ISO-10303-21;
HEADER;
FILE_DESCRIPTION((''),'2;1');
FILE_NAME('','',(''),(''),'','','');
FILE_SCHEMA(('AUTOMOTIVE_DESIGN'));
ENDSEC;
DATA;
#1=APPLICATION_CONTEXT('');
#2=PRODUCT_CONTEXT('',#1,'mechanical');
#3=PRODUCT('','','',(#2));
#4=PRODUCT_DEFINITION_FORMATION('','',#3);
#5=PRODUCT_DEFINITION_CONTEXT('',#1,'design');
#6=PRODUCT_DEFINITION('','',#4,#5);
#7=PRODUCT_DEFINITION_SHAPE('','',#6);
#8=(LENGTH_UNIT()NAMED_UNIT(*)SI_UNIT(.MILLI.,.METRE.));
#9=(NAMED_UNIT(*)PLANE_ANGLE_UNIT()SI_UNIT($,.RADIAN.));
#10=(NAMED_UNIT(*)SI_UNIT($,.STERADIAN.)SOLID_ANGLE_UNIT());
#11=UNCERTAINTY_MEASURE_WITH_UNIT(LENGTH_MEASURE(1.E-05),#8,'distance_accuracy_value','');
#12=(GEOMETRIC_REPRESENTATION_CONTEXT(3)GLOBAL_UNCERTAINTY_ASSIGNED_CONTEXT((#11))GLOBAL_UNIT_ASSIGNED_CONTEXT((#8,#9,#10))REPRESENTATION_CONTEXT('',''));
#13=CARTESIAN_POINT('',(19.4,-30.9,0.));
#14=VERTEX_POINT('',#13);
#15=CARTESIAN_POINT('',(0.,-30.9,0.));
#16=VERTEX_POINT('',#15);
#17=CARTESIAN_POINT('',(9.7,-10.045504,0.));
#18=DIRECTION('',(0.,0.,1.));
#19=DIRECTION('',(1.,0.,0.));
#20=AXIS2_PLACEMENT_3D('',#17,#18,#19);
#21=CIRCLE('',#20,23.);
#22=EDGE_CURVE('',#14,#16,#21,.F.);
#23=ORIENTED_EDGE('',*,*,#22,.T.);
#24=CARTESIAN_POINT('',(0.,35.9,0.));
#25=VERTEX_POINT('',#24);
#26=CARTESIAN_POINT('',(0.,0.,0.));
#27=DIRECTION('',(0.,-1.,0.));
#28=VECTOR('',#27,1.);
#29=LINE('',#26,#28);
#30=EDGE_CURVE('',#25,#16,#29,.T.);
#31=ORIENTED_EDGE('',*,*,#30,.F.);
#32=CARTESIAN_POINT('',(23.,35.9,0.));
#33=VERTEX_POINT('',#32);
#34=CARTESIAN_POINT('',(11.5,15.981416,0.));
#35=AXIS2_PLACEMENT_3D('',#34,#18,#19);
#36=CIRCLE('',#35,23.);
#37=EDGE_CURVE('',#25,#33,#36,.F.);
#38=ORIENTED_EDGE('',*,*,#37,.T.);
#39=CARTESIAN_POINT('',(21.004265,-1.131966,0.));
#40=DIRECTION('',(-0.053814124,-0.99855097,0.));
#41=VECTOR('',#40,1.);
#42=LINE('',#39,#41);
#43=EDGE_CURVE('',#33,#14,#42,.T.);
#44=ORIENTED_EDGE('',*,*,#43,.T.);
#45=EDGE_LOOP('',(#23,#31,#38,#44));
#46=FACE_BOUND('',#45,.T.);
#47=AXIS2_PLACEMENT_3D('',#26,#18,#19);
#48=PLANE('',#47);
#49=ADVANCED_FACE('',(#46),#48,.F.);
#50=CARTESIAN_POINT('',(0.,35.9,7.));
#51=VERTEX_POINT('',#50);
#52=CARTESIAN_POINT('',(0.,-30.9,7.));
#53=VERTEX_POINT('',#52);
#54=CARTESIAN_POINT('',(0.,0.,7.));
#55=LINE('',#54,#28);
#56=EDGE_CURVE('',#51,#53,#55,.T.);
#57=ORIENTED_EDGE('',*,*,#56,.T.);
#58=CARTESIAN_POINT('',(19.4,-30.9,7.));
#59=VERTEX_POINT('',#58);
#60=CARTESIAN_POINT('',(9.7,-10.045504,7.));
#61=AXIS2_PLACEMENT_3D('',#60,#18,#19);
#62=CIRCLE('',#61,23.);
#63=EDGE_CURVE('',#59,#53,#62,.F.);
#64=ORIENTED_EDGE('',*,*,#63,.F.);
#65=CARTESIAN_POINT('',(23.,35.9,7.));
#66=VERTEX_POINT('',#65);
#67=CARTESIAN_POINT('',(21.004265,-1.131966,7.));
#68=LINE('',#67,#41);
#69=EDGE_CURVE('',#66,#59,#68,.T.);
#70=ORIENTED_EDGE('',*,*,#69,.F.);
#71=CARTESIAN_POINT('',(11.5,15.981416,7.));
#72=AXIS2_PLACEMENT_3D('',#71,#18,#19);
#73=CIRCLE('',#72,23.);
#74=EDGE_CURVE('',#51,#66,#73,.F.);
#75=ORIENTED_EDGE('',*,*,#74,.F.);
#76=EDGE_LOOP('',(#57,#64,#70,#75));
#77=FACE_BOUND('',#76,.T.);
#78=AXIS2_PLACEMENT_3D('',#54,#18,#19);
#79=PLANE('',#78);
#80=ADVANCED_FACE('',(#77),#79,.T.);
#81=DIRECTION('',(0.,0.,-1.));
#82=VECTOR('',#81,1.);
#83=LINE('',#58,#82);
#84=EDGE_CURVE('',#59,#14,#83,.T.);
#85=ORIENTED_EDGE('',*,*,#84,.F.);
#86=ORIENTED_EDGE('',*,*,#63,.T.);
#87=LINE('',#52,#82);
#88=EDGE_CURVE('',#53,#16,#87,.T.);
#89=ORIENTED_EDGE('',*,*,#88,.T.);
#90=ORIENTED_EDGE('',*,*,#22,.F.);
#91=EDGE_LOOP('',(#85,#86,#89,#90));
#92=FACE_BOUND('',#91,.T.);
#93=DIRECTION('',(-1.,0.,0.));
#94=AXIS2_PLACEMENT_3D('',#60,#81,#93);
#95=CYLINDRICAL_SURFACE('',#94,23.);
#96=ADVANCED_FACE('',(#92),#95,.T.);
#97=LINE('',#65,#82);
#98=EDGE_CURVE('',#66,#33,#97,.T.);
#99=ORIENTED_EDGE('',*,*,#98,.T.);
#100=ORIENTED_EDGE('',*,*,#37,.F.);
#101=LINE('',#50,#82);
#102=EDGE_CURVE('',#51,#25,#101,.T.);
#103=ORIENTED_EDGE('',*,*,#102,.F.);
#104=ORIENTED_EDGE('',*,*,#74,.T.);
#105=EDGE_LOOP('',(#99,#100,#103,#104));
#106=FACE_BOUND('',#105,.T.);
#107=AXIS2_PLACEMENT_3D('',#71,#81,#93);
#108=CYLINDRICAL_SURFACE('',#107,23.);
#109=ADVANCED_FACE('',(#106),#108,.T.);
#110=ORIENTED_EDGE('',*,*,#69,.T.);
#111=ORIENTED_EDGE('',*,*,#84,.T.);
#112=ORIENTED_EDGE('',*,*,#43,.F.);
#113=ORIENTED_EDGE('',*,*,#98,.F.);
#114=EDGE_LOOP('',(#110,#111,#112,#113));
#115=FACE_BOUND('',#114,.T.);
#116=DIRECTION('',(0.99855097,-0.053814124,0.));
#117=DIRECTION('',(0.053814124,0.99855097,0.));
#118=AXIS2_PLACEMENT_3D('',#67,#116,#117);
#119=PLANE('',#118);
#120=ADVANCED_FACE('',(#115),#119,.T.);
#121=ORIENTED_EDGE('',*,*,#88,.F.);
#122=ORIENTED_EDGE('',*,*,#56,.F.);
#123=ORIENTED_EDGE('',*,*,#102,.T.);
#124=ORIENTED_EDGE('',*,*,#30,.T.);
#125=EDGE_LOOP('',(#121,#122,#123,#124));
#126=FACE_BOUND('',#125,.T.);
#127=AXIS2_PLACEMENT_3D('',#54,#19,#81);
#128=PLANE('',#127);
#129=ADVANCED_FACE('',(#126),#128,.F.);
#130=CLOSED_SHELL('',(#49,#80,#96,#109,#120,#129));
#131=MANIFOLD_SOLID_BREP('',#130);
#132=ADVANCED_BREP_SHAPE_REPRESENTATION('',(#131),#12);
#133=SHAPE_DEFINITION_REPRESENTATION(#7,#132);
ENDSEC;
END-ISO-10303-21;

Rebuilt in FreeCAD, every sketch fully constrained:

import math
import FreeCAD as App
import Part
import Sketcher

doc = App.newDocument("Part")
body = doc.addObject("PartDesign::Body", "Body")

sketch1 = body.newObject("Sketcher::SketchObject", "Sketch")
sketch1.AttachmentSupport = (doc.getObject("XY_Plane"), [""])
sketch1.MapMode = "FlatFace"
sketch1.addGeometry([
    Part.ArcOfCircle(Part.Circle(App.Vector(11.5, 15.981416, 0), App.Vector(0, 0, 1), 23), math.radians(60), math.radians(120)),
    Part.LineSegment(App.Vector(0, 35.9, 0), App.Vector(0, -30.9, 0)),
    Part.ArcOfCircle(Part.Circle(App.Vector(9.7, -10.045504, 0), App.Vector(0, 0, 1), 23), math.radians(-114.944435), math.radians(-65.055565)),
    Part.LineSegment(App.Vector(19.4, -30.9, 0), App.Vector(23, 35.9, 0)),
], False)
sketch1.addConstraint([
    Sketcher.Constraint("Coincident", 0, 2, 1, 1),
    Sketcher.Constraint("Coincident", 1, 2, 2, 1),
    Sketcher.Constraint("Coincident", 2, 2, 3, 1),
    Sketcher.Constraint("Coincident", 3, 2, 0, 1),
    Sketcher.Constraint("Vertical", 1),
    Sketcher.Constraint("Equal", 0, 2),
    Sketcher.Constraint("PointOnObject", 0, 2, -2),
    Sketcher.Constraint("Horizontal", 1, 2, 2, 2),
    Sketcher.Constraint("Horizontal", 0, 2, 3, 2),
    Sketcher.Constraint("Radius", 0, 23.0),
    Sketcher.Constraint("DistanceY", 1, 2, 1, 1, 66.8),
    Sketcher.Constraint("DistanceX", -1, 1, 3, 2, 23.0),
    Sketcher.Constraint("DistanceX", -1, 1, 2, 3, 9.7),
    Sketcher.Constraint("DistanceY", -1, 1, 0, 2, 35.9),
])
pad1 = body.newObject("PartDesign::Pad", "Pad")
pad1.Profile = sketch1
pad1.Length = 7

doc.recompute()
